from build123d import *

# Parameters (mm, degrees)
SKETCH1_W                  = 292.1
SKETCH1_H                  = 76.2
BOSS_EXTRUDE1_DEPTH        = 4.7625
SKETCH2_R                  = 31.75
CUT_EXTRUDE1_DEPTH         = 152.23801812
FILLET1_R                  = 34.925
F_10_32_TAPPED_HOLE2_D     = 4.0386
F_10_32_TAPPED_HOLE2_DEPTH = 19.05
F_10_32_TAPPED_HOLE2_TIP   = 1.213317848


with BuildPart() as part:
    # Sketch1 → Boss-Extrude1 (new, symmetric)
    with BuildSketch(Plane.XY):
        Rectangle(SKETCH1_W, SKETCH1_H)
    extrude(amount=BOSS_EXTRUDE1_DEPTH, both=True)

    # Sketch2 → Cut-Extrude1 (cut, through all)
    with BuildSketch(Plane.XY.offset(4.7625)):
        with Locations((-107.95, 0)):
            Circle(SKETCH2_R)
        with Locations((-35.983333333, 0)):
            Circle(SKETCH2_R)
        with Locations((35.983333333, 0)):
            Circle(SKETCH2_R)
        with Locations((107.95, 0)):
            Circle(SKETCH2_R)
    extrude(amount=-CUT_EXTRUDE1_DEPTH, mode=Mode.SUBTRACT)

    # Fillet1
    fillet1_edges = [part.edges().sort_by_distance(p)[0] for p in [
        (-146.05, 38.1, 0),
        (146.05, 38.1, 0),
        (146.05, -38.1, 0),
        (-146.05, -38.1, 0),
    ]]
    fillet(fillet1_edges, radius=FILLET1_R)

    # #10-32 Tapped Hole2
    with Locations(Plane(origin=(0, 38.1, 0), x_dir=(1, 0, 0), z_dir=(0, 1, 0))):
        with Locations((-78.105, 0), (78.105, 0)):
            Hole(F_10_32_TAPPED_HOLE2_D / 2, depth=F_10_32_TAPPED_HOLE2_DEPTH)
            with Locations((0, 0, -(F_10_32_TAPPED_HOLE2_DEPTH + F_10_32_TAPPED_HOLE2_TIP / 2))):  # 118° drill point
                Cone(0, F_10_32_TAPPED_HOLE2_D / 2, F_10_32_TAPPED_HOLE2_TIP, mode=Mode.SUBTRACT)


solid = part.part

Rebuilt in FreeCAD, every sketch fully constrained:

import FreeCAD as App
import Part
import Sketcher

V = App.Vector
Q = App.Units.Quantity


def edges_at(feature, points):
    """Names of the edges that pass closest to the given points."""
    edges = feature.Shape.Edges
    near = lambda p: min(range(len(edges)), key=lambda i: edges[i].distToShape(Part.Vertex(*p))[0])
    return sorted({f"Edge{near(p) + 1}" for p in points})

doc = App.newDocument("Part")
body = doc.addObject("PartDesign::Body", "Body")

# Sketch on XY plane
sketch1 = body.newObject("Sketcher::SketchObject", "Sketch")
sketch1.AttachmentSupport = (doc.getObject("XY_Plane"), [""])
sketch1.MapMode = "FlatFace"
sketch1.addGeometry([
    Part.LineSegment(V(-146.05, 38.1, 0), V(-146.05, -38.1, 0)),
    Part.LineSegment(V(-146.05, -38.1, 0), V(146.05, -38.1, 0)),
    Part.LineSegment(V(146.05, -38.1, 0), V(146.05, 38.1, 0)),
    Part.LineSegment(V(146.05, 38.1, 0), V(-146.05, 38.1, 0)),
], False)
sketch1.addConstraint([
    Sketcher.Constraint("Coincident", 0, 2, 1, 1),
    Sketcher.Constraint("Coincident", 1, 2, 2, 1),
    Sketcher.Constraint("Coincident", 2, 2, 3, 1),
    Sketcher.Constraint("Coincident", 3, 2, 0, 1),
    Sketcher.Constraint("Vertical", 0),
    Sketcher.Constraint("Horizontal", 1),
    Sketcher.Constraint("Vertical", 2),
    Sketcher.Constraint("Horizontal", 3),
    Sketcher.Constraint("Symmetric", 0, 2, 2, 2, -1, 1),
    Sketcher.Constraint("DistanceY", 0, 2, 0, 1, Q("3 in")),
    Sketcher.Constraint("DistanceX", 1, 1, 1, 2, Q("11.5 in")),
])
pad1 = body.newObject("PartDesign::Pad", "Pad")
pad1.Profile = sketch1
pad1.Length = Q("0.375 in")
pad1.Midplane = True

# Sketch on XY plane
sketch2 = body.newObject("Sketcher::SketchObject", "Sketch001")
sketch2.AttachmentSupport = (doc.getObject("XY_Plane"), [""])
sketch2.MapMode = "FlatFace"
sketch2.AttachmentOffset = App.Placement(V(0, 0, 0.1875 * 25.4), App.Rotation())
sketch2.addGeometry([
    Part.Circle(V(-107.95, 0, 0), V(0, 0, 1), 31.75),
    Part.Circle(V(-35.983333, 0, 0), V(0, 0, 1), 31.75),
    Part.Circle(V(35.983333, 0, 0), V(0, 0, 1), 31.75),
    Part.Circle(V(107.95, 0, 0), V(0, 0, 1), 31.75),
], False)
sketch2.addConstraint([
    Sketcher.Constraint("Equal", 0, 1),
    Sketcher.Constraint("Equal", 1, 2),
    Sketcher.Constraint("Equal", 2, 3),
    Sketcher.Constraint("Symmetric", 1, 3, 2, 3, -1, 1),
    Sketcher.Constraint("Symmetric", 0, 3, 3, 3, -1, 1),
    Sketcher.Constraint("PointOnObject", 0, 3, -1),
    Sketcher.Constraint("PointOnObject", 1, 3, -1),
    Sketcher.Constraint("Diameter", 0, Q("2.5 in")),
    Sketcher.Constraint("DistanceX", 0, 3, 3, 3, Q("8.5 in")),
    Sketcher.Constraint("DistanceX", 1, 3, -1, 1, Q("35.983333 mm")),
])
pocket1 = body.newObject("PartDesign::Pocket", "Pocket")
pocket1.Profile = sketch2
pocket1.Type = "ThroughAll"
doc.recompute()

fillet = body.newObject("PartDesign::Fillet", "Fillet")
fillet.Base = (pocket1, edges_at(pocket1, [
    (-146.05, 38.1, 0),
    (146.05, 38.1, 0),
    (146.05, -38.1, 0),
    (-146.05, -38.1, 0),
]))
fillet.Radius = Q("1.375 in")

# Sketch on XZ plane
sketch3 = body.newObject("Sketcher::SketchObject", "Sketch002")
sketch3.AttachmentSupport = (doc.getObject("XZ_Plane"), [""])
sketch3.MapMode = "FlatFace"
sketch3.AttachmentOffset = App.Placement(V(0, 0, -1.5 * 25.4), App.Rotation())
sketch3.addGeometry([
    Part.Circle(V(-78.105, 0, 0), V(0, 0, 1), 2.0193),
    Part.Circle(V(78.105, 0, 0), V(0, 0, 1), 2.0193),
], False)
sketch3.addConstraint([
    Sketcher.Constraint("Equal", 0, 1),
    Sketcher.Constraint("Symmetric", 0, 3, 1, 3, -1, 1),
    Sketcher.Constraint("PointOnObject", 0, 3, -1),
    Sketcher.Constraint("Diameter", 0, Q("0.159 in")),
    Sketcher.Constraint("DistanceX", 0, 3, 1, 3, Q("6.15 in")),
])
doc.recompute()
hole = body.newObject("PartDesign::Hole", "Hole")
hole.Profile = sketch3
hole.ThreadType = "None"
hole.Diameter = Q("0.159 in")
hole.DepthType = "Dimension"
hole.Depth = Q("0.75 in")
hole.DrillPoint = "Angled"
hole.DrillPointAngle = 118
hole.Reversed = True

doc.recompute()
